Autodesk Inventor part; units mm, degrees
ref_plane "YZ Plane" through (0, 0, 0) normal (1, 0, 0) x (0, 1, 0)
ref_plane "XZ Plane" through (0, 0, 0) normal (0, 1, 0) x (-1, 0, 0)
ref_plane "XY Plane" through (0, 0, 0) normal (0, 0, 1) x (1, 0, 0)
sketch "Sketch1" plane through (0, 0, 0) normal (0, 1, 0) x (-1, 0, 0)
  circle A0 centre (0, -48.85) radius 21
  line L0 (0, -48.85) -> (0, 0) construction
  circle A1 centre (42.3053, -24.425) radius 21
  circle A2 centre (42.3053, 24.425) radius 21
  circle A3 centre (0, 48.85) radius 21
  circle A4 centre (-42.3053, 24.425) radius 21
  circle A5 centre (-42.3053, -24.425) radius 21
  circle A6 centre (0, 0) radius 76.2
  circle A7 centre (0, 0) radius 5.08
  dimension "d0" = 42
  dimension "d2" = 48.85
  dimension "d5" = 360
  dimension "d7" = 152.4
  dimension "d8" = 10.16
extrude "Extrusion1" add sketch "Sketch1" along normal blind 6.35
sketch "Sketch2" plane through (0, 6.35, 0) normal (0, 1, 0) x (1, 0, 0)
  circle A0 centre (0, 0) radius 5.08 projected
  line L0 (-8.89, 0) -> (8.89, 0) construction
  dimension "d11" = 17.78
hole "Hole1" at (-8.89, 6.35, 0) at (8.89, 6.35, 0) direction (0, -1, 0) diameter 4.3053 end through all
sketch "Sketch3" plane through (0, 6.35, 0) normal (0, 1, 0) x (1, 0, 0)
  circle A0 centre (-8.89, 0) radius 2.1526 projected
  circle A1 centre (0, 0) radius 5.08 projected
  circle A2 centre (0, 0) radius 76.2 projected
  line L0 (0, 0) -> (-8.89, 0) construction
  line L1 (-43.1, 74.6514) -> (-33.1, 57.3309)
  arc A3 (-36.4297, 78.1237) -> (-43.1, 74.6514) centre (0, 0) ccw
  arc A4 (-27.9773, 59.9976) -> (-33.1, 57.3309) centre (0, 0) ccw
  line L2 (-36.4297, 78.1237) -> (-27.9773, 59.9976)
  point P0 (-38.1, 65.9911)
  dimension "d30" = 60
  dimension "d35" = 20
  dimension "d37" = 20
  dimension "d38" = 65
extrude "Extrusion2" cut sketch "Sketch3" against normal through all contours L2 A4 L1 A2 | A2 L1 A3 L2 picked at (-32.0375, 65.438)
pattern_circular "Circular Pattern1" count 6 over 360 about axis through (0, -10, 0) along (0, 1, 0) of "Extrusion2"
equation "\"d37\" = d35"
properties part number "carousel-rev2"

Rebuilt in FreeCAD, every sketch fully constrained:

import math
import FreeCAD as App
import Part
import Sketcher
Q = App.Units.Quantity

doc = App.newDocument("Part")
params = doc.addObject("Spreadsheet::Sheet", "Params")
for row, (alias, value) in enumerate([
    ("sketch1_diameter", "6 in"),
    ("sketch1_diameter2", "0.4 in"),
    ("pad1_length", "0.25 in"),
    ("hole_diameter", "0.1695 in"),
], start=1):
    params.set(f"A{row}", alias)
    params.set(f"B{row}", "=" + value)
    params.setAlias(f"B{row}", alias)

body = doc.addObject("PartDesign::Body", "Body")

sketch1 = body.newObject("Sketcher::SketchObject", "Sketch")
sketch1.AttachmentSupport = (doc.getObject("XZ_Plane"), [""])
sketch1.MapMode = "FlatFace"
sketch1.addGeometry([
    Part.Circle(App.Vector(0, 0, 0), App.Vector(0, 0, 1), 76.2),
    Part.Circle(App.Vector(42.3053, -24.425, 0), App.Vector(0, 0, 1), 21),
    Part.Circle(App.Vector(0, -48.85, 0), App.Vector(0, 0, 1), 21),
    Part.Circle(App.Vector(-42.3053, -24.425, 0), App.Vector(0, 0, 1), 21),
    Part.Circle(App.Vector(42.3053, 24.425, 0), App.Vector(0, 0, 1), 21),
    Part.Circle(App.Vector(0, 0, 0), App.Vector(0, 0, 1), 5.08),
    Part.Circle(App.Vector(-42.3053, 24.425, 0), App.Vector(0, 0, 1), 21),
    Part.Circle(App.Vector(0, 48.85, 0), App.Vector(0, 0, 1), 21),
], False)
sketch1.addConstraint([
    Sketcher.Constraint("Coincident", 0, 3, -1, 1),
    Sketcher.Constraint("Coincident", 5, 3, -1, 1),
    Sketcher.Constraint("Equal", 1, 2),
    Sketcher.Constraint("Equal", 2, 3),
    Sketcher.Constraint("Equal", 3, 4),
    Sketcher.Constraint("Equal", 4, 6),
    Sketcher.Constraint("Equal", 6, 7),
    Sketcher.Constraint("Symmetric", 3, 3, 4, 3, -1, 1),
    Sketcher.Constraint("Symmetric", 1, 3, 6, 3, -1, 1),
    Sketcher.Constraint("Symmetric", 2, 3, 7, 3, -1, 1),
    Sketcher.Constraint("Symmetric", 1, 3, 3, 3, -2),
    Sketcher.Constraint("PointOnObject", 2, 3, -2),
    Sketcher.Constraint("Diameter", 0, Q("6 in")),
    Sketcher.Constraint("Diameter", 5, Q("0.4 in")),
    Sketcher.Constraint("Diameter", 1, Q("42 mm")),
    Sketcher.Constraint("DistanceY", 2, 3, -1, 1, Q("48.85 mm")),
    Sketcher.Constraint("DistanceY", 1, 3, 4, 3, Q("48.85 mm")),
    Sketcher.Constraint("DistanceX", -1, 1, 1, 3, Q("42.3053 mm")),
])
sketch1.setExpression("Constraints[12]", "Params.sketch1_diameter")
sketch1.setExpression("Constraints[13]", "Params.sketch1_diameter2")
pad1 = body.newObject("PartDesign::Pad", "Pad")
pad1.Profile = sketch1
pad1.setExpression("Length", "Params.pad1_length")
pad1.Reversed = True

sketch2 = body.newObject("Sketcher::SketchObject", "Sketch001")
sketch2.AttachmentSupport = (doc.getObject("XZ_Plane"), [""])
sketch2.MapMode = "FlatFace"
sketch2.AttachmentOffset = App.Placement(App.Vector(0, 0, -0.25 * 25.4), App.Rotation())
sketch2.addGeometry([
    Part.Circle(App.Vector(-8.89, 0, 0), App.Vector(0, 0, 1), 2.15265),
    Part.Circle(App.Vector(8.89, 0, 0), App.Vector(0, 0, 1), 2.15265),
], False)
sketch2.addConstraint([
    Sketcher.Constraint("Equal", 0, 1),
    Sketcher.Constraint("Symmetric", 0, 3, 1, 3, -1, 1),
    Sketcher.Constraint("PointOnObject", 0, 3, -1),
    Sketcher.Constraint("Diameter", 0, Q("0.1695 in")),
    Sketcher.Constraint("DistanceX", 0, 3, 1, 3, Q("0.7 in")),
])
doc.recompute()
hole = body.newObject("PartDesign::Hole", "Hole")
hole.Profile = sketch2
hole.ThreadType = "None"
hole.setExpression("Diameter", "Params.hole_diameter")
hole.DepthType = "ThroughAll"
hole.Reversed = True

sketch3 = body.newObject("Sketcher::SketchObject", "Sketch002")
sketch3.AttachmentSupport = (doc.getObject("XZ_Plane"), [""])
sketch3.MapMode = "FlatFace"
sketch3.AttachmentOffset = App.Placement(App.Vector(0, 0, -0.25 * 25.4), App.Rotation())
sketch3.addGeometry([
    Part.LineSegment(App.Vector(-27.9773, -59.9976, 0), App.Vector(-36.4297, -78.1237, 0)),
    Part.ArcOfCircle(Part.Circle(App.Vector(0.008061, 0.016345, 0), App.Vector(0, 0, 1), 86.218195), math.radians(-119.999205), math.radians(-115.000276)),
    Part.LineSegment(App.Vector(-43.1, -74.6514, 0), App.Vector(-33.1, -57.3309, 0)),
    Part.ArcOfCircle(Part.Circle(App.Vector(0.001358, 0.002754, 0), App.Vector(0, 0, 1), 66.20308), math.radians(-119.999818), math.radians(-115.000026)),
], False)
sketch3.addConstraint([
    Sketcher.Constraint("Coincident", 0, 2, 1, 2),
    Sketcher.Constraint("Coincident", 1, 1, 2, 1),
    Sketcher.Constraint("Coincident", 2, 2, 3, 1),
    Sketcher.Constraint("Coincident", 3, 2, 0, 1),
    Sketcher.Constraint("Equal", 0, 2),
    Sketcher.Constraint("Angle", 2, Q("60 deg")),
    Sketcher.Constraint("Angle", 0, Q("-115.0002 deg")),
    Sketcher.Constraint("Distance", 0, Q("0.7874 in")),
    Sketcher.Constraint("Radius", 1, Q("86.2182 mm")),
    Sketcher.Constraint("Radius", 3, Q("66.203 mm")),
    Sketcher.Constraint("DistanceY", 3, 2, 3, 3, Q("60.0004 mm")),
    Sketcher.Constraint("DistanceY", 3, 2, 2, 2, Q("0.105 in")),
    Sketcher.Constraint("DistanceY", -1, 1, 3, 3, Q("0.0001 in")),
    Sketcher.Constraint("DistanceX", -1, 1, 1, 3, Q("0.008 mm")),
])
pocket1 = body.newObject("PartDesign::Pocket", "Pocket")
pocket1.Profile = sketch3
pocket1.Type = "ThroughAll"
pocket1.Reversed = True
doc.recompute()

polarpattern = body.newObject("PartDesign::PolarPattern", "PolarPattern")
polarpattern.Originals = [pocket1]
polarpattern.Axis = (doc.getObject("Y_Axis"), [""])
polarpattern.Angle = 360
polarpattern.Occurrences = 6
body.Tip = polarpattern

doc.recompute()
